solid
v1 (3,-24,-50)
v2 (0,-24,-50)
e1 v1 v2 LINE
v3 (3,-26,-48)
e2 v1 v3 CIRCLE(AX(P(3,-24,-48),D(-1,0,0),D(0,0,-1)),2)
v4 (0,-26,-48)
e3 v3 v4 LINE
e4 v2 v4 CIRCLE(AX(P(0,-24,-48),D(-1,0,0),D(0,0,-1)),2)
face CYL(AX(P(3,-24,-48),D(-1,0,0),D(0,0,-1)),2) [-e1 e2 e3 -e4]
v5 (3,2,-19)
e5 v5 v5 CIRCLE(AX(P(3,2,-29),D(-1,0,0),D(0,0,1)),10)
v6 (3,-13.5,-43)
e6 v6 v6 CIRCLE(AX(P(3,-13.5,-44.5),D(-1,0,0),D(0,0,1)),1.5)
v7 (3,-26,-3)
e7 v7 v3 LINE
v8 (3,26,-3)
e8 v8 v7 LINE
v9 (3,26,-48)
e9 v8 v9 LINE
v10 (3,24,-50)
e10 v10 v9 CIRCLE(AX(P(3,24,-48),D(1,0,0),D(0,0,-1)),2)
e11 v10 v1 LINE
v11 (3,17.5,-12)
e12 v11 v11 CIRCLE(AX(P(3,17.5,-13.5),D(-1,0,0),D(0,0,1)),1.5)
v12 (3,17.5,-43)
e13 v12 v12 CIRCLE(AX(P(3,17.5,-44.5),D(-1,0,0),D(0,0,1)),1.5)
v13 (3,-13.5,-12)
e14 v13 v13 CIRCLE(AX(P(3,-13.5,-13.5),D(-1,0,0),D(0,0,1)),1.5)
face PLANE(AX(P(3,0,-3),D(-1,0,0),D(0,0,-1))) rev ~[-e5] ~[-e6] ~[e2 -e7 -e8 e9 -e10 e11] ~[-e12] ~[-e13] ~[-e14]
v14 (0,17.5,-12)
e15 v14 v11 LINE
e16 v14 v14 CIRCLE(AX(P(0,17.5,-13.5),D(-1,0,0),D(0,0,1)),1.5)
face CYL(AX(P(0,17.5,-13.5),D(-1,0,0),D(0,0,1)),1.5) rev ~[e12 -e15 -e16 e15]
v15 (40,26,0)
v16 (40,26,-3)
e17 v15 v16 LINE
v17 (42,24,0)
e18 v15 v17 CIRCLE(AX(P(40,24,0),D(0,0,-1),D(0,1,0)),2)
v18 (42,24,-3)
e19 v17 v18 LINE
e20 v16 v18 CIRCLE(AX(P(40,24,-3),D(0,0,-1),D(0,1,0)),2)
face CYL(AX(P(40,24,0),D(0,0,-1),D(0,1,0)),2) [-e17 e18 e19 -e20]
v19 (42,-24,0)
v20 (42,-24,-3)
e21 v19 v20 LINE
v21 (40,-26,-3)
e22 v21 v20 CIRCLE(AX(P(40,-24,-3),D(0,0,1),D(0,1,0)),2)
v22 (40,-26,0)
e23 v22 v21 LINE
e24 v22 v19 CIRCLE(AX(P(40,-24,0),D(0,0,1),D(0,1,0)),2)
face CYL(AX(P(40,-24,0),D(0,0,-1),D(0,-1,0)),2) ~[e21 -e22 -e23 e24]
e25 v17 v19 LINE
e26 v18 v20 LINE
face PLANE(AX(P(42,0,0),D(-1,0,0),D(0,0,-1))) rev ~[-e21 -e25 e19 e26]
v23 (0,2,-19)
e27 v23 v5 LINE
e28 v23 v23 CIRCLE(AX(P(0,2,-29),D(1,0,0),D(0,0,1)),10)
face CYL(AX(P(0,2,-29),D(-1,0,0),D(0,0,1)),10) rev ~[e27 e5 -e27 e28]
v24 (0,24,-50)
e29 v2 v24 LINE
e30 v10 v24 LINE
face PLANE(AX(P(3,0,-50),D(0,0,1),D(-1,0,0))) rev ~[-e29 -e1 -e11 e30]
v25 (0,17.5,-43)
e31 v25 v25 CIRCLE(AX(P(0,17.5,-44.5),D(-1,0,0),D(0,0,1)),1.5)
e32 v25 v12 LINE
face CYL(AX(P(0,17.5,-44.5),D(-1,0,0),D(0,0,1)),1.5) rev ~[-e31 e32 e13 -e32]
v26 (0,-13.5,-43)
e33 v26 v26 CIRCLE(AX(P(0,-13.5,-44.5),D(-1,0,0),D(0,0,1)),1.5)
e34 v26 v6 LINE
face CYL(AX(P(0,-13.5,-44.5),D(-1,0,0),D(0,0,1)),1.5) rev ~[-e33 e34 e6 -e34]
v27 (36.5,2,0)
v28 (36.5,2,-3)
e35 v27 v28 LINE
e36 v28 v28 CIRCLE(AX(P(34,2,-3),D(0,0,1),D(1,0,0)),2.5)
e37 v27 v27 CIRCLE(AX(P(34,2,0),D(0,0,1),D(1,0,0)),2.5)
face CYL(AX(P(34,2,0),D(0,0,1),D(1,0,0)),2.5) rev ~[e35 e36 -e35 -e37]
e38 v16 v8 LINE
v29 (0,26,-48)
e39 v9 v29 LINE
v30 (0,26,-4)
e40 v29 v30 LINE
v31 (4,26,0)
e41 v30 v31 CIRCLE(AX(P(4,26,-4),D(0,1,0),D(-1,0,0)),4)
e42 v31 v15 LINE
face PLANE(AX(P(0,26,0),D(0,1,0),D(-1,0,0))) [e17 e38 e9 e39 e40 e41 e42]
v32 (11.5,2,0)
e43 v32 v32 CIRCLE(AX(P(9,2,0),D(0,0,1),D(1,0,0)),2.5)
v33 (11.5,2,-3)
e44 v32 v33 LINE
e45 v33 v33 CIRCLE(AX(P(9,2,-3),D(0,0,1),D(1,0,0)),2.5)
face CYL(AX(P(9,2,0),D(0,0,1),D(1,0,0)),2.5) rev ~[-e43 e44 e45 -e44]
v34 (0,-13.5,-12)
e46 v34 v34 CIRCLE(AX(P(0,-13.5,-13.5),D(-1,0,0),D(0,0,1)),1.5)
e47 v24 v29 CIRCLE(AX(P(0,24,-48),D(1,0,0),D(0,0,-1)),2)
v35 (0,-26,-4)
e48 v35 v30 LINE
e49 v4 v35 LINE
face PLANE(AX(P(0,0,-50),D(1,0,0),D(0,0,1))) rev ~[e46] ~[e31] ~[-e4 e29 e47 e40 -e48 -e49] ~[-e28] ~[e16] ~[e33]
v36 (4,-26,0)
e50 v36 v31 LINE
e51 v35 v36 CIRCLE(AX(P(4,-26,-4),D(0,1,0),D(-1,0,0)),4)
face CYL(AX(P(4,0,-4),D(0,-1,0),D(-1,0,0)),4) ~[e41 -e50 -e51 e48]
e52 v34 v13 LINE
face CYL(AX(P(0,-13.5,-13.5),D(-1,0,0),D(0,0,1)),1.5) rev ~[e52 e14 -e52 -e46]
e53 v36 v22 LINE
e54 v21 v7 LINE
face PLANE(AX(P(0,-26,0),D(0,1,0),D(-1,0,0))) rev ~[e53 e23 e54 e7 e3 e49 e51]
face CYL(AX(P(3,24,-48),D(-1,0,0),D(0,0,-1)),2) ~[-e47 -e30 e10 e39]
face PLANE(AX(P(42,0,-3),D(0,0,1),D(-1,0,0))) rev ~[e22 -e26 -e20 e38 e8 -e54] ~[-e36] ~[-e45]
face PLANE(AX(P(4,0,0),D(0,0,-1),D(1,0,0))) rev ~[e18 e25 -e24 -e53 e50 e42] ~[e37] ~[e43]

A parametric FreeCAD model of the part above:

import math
import FreeCAD as App
import Part
import Sketcher
Q = App.Units.Quantity


def edges_at(feature, points):
    """Names of the edges that pass closest to the given points."""
    edges = feature.Shape.Edges
    near = lambda p: min(range(len(edges)), key=lambda i: edges[i].distToShape(Part.Vertex(*p))[0])
    return sorted({f"Edge{near(p) + 1}" for p in points})

doc = App.newDocument("Part")
params = doc.addObject("Spreadsheet::Sheet", "Params")
for row, (alias, value) in enumerate([
    ("sketch1_radius", "4 mm"),
    ("sketch1_width", "3 mm"),
    ("pad1_length", "52 mm"),
    ("fillet_radius", "2 mm"),
    ("sketch2_diameter", "5 mm"),
    ("sketch3_diameter", "3 mm"),
    ("sketch3_diameter2", "20 mm"),
], start=1):
    params.set(f"A{row}", alias)
    params.set(f"B{row}", "=" + value)
    params.setAlias(f"B{row}", alias)

body = doc.addObject("PartDesign::Body", "Body")

sketch1 = body.newObject("Sketcher::SketchObject", "Sketch")
sketch1.AttachmentSupport = (doc.getObject("XZ_Plane"), [""])
sketch1.MapMode = "FlatFace"
sketch1.addGeometry(Part.LineSegment(App.Vector(3, -50, 0), App.Vector(0, -50, 0)), False)
sketch1.addGeometry(Part.LineSegment(App.Vector(0, -50, 0), App.Vector(0, -4, 0)), False)
sketch1.addGeometry(Part.ArcOfCircle(Part.Circle(App.Vector(4, -4, 0), App.Vector(0, 0, 1), 4), math.radians(90), math.radians(180)), False)
sketch1.addGeometry(Part.LineSegment(App.Vector(4, 0, 0), App.Vector(42, 0, 0)), False)
sketch1.addGeometry(Part.LineSegment(App.Vector(42, 0, 0), App.Vector(42, -3, 0)), False)
sketch1.addGeometry(Part.LineSegment(App.Vector(42, -3, 0), App.Vector(3, -3, 0)), False)
sketch1.addGeometry(Part.LineSegment(App.Vector(3, -3, 0), App.Vector(3, -50, 0)), False)
sketch1.addConstraint(Sketcher.Constraint("Coincident", 0, 2, 1, 1))
sketch1.addConstraint(Sketcher.Constraint("Tangent", 1, 2, 2, 2))
sketch1.addConstraint(Sketcher.Constraint("Tangent", 2, 1, 3, 1))
sketch1.addConstraint(Sketcher.Constraint("Coincident", 3, 2, 4, 1))
sketch1.addConstraint(Sketcher.Constraint("Coincident", 4, 2, 5, 1))
sketch1.addConstraint(Sketcher.Constraint("Coincident", 5, 2, 6, 1))
sketch1.addConstraint(Sketcher.Constraint("Coincident", 6, 2, 0, 1))
sketch1.addConstraint(Sketcher.Constraint("Horizontal", 0))
sketch1.addConstraint(Sketcher.Constraint("Vertical", 1))
sketch1.addConstraint(Sketcher.Constraint("Horizontal", 3))
sketch1.addConstraint(Sketcher.Constraint("Vertical", 4))
sketch1.addConstraint(Sketcher.Constraint("Horizontal", 5))
sketch1.addConstraint(Sketcher.Constraint("Vertical", 6))
sketch1.addConstraint(Sketcher.Constraint("PointOnObject", 0, 2, -2))
sketch1.addConstraint(Sketcher.Constraint("PointOnObject", 2, 1, -1))
sketch1.addConstraint(Sketcher.Constraint("Equal", 0, 4))
sketch1.addConstraint(Sketcher.Constraint("Radius", 2, Q("4 mm")))
sketch1.addConstraint(Sketcher.Constraint("DistanceX", 0, 2, 0, 1, Q("3 mm")))
sketch1.addConstraint(Sketcher.Constraint("DistanceY", 0, 2, -1, 1, Q("50 mm")))
sketch1.addConstraint(Sketcher.Constraint("DistanceX", -1, 1, 3, 2, Q("42 mm")))
sketch1.setExpression("Constraints[16]", "Params.sketch1_radius")
sketch1.setExpression("Constraints[17]", "Params.sketch1_width")
pad1 = body.newObject("PartDesign::Pad", "Pad")
pad1.Profile = sketch1
pad1.setExpression("Length", "Params.pad1_length")
pad1.Midplane = True
doc.recompute()

fillet = body.newObject("PartDesign::Fillet", "Fillet")
fillet.Base = (pad1, edges_at(pad1, [
    (1.5, 26, -50),
    (1.5, -26, -50),
    (42, 26, -1.5),
    (42, -26, -1.5),
]))
fillet.setExpression("Radius", "Params.fillet_radius")

sketch2 = body.newObject("Sketcher::SketchObject", "Sketch001")
sketch2.AttachmentSupport = (doc.getObject("XY_Plane"), [""])
sketch2.MapMode = "FlatFace"
sketch2.addGeometry(Part.Circle(App.Vector(9, 2, 0), App.Vector(0, 0, 1), 2.5), False)
sketch2.addGeometry(Part.Circle(App.Vector(34, 2, 0), App.Vector(0, 0, 1), 2.5), False)
sketch2.addConstraint(Sketcher.Constraint("Equal", 0, 1))
sketch2.addConstraint(Sketcher.Constraint("Horizontal", 0, 3, 1, 3))
sketch2.addConstraint(Sketcher.Constraint("Diameter", 0, Q("5 mm")))
sketch2.addConstraint(Sketcher.Constraint("DistanceX", 0, 3, 1, 3, Q("25 mm")))
sketch2.addConstraint(Sketcher.Constraint("DistanceX", -1, 1, 0, 3, Q("9 mm")))
sketch2.addConstraint(Sketcher.Constraint("DistanceY", -1, 1, 0, 3, Q("2 mm")))
sketch2.setExpression("Constraints[2]", "Params.sketch2_diameter")
pocket1 = body.newObject("PartDesign::Pocket", "Pocket")
pocket1.Profile = sketch2
pocket1.Type = "ThroughAll"

sketch3 = body.newObject("Sketcher::SketchObject", "Sketch002")
sketch3.AttachmentSupport = (doc.getObject("YZ_Plane"), [""])
sketch3.MapMode = "FlatFace"
sketch3.addGeometry(Part.Circle(App.Vector(17.5, -44.5, 0), App.Vector(0, 0, 1), 1.5), False)
sketch3.addGeometry(Part.Circle(App.Vector(17.5, -13.5, 0), App.Vector(0, 0, 1), 1.5), False)
sketch3.addGeometry(Part.Circle(App.Vector(-13.5, -13.5, 0), App.Vector(0, 0, 1), 1.5), False)
sketch3.addGeometry(Part.Circle(App.Vector(-13.5, -44.5, 0), App.Vector(0, 0, 1), 1.5), False)
sketch3.addGeometry(Part.Circle(App.Vector(2, -29, 0), App.Vector(0, 0, 1), 10), False)
sketch3.addConstraint(Sketcher.Constraint("Equal", 0, 1))
sketch3.addConstraint(Sketcher.Constraint("Equal", 1, 2))
sketch3.addConstraint(Sketcher.Constraint("Equal", 2, 3))
sketch3.addConstraint(Sketcher.Constraint("Horizontal", 1, 3, 2, 3))
sketch3.addConstraint(Sketcher.Constraint("Horizontal", 0, 3, 3, 3))
sketch3.addConstraint(Sketcher.Constraint("Vertical", 0, 3, 1, 3))
sketch3.addConstraint(Sketcher.Constraint("Vertical", 2, 3, 3, 3))
sketch3.addConstraint(Sketcher.Constraint("Diameter", 0, Q("3 mm")))
sketch3.addConstraint(Sketcher.Constraint("Diameter", 4, Q("20 mm")))
sketch3.addConstraint(Sketcher.Constraint("DistanceY", 0, 3, 1, 3, Q("31 mm")))
sketch3.addConstraint(Sketcher.Constraint("DistanceX", 2, 3, 1, 3, Q("31 mm")))
sketch3.addConstraint(Sketcher.Constraint("DistanceX", 4, 3, 0, 3, Q("15.5 mm")))
sketch3.addConstraint(Sketcher.Constraint("DistanceY", 0, 3, 4, 3, Q("15.5 mm")))
sketch3.addConstraint(Sketcher.Constraint("DistanceX", -1, 1, 4, 3, Q("2 mm")))
sketch3.addConstraint(Sketcher.Constraint("DistanceY", 4, 3, -1, 1, Q("29 mm")))
sketch3.setExpression("Constraints[7]", "Params.sketch3_diameter")
sketch3.setExpression("Constraints[8]", "Params.sketch3_diameter2")
pocket2 = body.newObject("PartDesign::Pocket", "Pocket001")
pocket2.Profile = sketch3
pocket2.Type = "ThroughAll"
pocket2.Reversed = True

doc.recompute()
